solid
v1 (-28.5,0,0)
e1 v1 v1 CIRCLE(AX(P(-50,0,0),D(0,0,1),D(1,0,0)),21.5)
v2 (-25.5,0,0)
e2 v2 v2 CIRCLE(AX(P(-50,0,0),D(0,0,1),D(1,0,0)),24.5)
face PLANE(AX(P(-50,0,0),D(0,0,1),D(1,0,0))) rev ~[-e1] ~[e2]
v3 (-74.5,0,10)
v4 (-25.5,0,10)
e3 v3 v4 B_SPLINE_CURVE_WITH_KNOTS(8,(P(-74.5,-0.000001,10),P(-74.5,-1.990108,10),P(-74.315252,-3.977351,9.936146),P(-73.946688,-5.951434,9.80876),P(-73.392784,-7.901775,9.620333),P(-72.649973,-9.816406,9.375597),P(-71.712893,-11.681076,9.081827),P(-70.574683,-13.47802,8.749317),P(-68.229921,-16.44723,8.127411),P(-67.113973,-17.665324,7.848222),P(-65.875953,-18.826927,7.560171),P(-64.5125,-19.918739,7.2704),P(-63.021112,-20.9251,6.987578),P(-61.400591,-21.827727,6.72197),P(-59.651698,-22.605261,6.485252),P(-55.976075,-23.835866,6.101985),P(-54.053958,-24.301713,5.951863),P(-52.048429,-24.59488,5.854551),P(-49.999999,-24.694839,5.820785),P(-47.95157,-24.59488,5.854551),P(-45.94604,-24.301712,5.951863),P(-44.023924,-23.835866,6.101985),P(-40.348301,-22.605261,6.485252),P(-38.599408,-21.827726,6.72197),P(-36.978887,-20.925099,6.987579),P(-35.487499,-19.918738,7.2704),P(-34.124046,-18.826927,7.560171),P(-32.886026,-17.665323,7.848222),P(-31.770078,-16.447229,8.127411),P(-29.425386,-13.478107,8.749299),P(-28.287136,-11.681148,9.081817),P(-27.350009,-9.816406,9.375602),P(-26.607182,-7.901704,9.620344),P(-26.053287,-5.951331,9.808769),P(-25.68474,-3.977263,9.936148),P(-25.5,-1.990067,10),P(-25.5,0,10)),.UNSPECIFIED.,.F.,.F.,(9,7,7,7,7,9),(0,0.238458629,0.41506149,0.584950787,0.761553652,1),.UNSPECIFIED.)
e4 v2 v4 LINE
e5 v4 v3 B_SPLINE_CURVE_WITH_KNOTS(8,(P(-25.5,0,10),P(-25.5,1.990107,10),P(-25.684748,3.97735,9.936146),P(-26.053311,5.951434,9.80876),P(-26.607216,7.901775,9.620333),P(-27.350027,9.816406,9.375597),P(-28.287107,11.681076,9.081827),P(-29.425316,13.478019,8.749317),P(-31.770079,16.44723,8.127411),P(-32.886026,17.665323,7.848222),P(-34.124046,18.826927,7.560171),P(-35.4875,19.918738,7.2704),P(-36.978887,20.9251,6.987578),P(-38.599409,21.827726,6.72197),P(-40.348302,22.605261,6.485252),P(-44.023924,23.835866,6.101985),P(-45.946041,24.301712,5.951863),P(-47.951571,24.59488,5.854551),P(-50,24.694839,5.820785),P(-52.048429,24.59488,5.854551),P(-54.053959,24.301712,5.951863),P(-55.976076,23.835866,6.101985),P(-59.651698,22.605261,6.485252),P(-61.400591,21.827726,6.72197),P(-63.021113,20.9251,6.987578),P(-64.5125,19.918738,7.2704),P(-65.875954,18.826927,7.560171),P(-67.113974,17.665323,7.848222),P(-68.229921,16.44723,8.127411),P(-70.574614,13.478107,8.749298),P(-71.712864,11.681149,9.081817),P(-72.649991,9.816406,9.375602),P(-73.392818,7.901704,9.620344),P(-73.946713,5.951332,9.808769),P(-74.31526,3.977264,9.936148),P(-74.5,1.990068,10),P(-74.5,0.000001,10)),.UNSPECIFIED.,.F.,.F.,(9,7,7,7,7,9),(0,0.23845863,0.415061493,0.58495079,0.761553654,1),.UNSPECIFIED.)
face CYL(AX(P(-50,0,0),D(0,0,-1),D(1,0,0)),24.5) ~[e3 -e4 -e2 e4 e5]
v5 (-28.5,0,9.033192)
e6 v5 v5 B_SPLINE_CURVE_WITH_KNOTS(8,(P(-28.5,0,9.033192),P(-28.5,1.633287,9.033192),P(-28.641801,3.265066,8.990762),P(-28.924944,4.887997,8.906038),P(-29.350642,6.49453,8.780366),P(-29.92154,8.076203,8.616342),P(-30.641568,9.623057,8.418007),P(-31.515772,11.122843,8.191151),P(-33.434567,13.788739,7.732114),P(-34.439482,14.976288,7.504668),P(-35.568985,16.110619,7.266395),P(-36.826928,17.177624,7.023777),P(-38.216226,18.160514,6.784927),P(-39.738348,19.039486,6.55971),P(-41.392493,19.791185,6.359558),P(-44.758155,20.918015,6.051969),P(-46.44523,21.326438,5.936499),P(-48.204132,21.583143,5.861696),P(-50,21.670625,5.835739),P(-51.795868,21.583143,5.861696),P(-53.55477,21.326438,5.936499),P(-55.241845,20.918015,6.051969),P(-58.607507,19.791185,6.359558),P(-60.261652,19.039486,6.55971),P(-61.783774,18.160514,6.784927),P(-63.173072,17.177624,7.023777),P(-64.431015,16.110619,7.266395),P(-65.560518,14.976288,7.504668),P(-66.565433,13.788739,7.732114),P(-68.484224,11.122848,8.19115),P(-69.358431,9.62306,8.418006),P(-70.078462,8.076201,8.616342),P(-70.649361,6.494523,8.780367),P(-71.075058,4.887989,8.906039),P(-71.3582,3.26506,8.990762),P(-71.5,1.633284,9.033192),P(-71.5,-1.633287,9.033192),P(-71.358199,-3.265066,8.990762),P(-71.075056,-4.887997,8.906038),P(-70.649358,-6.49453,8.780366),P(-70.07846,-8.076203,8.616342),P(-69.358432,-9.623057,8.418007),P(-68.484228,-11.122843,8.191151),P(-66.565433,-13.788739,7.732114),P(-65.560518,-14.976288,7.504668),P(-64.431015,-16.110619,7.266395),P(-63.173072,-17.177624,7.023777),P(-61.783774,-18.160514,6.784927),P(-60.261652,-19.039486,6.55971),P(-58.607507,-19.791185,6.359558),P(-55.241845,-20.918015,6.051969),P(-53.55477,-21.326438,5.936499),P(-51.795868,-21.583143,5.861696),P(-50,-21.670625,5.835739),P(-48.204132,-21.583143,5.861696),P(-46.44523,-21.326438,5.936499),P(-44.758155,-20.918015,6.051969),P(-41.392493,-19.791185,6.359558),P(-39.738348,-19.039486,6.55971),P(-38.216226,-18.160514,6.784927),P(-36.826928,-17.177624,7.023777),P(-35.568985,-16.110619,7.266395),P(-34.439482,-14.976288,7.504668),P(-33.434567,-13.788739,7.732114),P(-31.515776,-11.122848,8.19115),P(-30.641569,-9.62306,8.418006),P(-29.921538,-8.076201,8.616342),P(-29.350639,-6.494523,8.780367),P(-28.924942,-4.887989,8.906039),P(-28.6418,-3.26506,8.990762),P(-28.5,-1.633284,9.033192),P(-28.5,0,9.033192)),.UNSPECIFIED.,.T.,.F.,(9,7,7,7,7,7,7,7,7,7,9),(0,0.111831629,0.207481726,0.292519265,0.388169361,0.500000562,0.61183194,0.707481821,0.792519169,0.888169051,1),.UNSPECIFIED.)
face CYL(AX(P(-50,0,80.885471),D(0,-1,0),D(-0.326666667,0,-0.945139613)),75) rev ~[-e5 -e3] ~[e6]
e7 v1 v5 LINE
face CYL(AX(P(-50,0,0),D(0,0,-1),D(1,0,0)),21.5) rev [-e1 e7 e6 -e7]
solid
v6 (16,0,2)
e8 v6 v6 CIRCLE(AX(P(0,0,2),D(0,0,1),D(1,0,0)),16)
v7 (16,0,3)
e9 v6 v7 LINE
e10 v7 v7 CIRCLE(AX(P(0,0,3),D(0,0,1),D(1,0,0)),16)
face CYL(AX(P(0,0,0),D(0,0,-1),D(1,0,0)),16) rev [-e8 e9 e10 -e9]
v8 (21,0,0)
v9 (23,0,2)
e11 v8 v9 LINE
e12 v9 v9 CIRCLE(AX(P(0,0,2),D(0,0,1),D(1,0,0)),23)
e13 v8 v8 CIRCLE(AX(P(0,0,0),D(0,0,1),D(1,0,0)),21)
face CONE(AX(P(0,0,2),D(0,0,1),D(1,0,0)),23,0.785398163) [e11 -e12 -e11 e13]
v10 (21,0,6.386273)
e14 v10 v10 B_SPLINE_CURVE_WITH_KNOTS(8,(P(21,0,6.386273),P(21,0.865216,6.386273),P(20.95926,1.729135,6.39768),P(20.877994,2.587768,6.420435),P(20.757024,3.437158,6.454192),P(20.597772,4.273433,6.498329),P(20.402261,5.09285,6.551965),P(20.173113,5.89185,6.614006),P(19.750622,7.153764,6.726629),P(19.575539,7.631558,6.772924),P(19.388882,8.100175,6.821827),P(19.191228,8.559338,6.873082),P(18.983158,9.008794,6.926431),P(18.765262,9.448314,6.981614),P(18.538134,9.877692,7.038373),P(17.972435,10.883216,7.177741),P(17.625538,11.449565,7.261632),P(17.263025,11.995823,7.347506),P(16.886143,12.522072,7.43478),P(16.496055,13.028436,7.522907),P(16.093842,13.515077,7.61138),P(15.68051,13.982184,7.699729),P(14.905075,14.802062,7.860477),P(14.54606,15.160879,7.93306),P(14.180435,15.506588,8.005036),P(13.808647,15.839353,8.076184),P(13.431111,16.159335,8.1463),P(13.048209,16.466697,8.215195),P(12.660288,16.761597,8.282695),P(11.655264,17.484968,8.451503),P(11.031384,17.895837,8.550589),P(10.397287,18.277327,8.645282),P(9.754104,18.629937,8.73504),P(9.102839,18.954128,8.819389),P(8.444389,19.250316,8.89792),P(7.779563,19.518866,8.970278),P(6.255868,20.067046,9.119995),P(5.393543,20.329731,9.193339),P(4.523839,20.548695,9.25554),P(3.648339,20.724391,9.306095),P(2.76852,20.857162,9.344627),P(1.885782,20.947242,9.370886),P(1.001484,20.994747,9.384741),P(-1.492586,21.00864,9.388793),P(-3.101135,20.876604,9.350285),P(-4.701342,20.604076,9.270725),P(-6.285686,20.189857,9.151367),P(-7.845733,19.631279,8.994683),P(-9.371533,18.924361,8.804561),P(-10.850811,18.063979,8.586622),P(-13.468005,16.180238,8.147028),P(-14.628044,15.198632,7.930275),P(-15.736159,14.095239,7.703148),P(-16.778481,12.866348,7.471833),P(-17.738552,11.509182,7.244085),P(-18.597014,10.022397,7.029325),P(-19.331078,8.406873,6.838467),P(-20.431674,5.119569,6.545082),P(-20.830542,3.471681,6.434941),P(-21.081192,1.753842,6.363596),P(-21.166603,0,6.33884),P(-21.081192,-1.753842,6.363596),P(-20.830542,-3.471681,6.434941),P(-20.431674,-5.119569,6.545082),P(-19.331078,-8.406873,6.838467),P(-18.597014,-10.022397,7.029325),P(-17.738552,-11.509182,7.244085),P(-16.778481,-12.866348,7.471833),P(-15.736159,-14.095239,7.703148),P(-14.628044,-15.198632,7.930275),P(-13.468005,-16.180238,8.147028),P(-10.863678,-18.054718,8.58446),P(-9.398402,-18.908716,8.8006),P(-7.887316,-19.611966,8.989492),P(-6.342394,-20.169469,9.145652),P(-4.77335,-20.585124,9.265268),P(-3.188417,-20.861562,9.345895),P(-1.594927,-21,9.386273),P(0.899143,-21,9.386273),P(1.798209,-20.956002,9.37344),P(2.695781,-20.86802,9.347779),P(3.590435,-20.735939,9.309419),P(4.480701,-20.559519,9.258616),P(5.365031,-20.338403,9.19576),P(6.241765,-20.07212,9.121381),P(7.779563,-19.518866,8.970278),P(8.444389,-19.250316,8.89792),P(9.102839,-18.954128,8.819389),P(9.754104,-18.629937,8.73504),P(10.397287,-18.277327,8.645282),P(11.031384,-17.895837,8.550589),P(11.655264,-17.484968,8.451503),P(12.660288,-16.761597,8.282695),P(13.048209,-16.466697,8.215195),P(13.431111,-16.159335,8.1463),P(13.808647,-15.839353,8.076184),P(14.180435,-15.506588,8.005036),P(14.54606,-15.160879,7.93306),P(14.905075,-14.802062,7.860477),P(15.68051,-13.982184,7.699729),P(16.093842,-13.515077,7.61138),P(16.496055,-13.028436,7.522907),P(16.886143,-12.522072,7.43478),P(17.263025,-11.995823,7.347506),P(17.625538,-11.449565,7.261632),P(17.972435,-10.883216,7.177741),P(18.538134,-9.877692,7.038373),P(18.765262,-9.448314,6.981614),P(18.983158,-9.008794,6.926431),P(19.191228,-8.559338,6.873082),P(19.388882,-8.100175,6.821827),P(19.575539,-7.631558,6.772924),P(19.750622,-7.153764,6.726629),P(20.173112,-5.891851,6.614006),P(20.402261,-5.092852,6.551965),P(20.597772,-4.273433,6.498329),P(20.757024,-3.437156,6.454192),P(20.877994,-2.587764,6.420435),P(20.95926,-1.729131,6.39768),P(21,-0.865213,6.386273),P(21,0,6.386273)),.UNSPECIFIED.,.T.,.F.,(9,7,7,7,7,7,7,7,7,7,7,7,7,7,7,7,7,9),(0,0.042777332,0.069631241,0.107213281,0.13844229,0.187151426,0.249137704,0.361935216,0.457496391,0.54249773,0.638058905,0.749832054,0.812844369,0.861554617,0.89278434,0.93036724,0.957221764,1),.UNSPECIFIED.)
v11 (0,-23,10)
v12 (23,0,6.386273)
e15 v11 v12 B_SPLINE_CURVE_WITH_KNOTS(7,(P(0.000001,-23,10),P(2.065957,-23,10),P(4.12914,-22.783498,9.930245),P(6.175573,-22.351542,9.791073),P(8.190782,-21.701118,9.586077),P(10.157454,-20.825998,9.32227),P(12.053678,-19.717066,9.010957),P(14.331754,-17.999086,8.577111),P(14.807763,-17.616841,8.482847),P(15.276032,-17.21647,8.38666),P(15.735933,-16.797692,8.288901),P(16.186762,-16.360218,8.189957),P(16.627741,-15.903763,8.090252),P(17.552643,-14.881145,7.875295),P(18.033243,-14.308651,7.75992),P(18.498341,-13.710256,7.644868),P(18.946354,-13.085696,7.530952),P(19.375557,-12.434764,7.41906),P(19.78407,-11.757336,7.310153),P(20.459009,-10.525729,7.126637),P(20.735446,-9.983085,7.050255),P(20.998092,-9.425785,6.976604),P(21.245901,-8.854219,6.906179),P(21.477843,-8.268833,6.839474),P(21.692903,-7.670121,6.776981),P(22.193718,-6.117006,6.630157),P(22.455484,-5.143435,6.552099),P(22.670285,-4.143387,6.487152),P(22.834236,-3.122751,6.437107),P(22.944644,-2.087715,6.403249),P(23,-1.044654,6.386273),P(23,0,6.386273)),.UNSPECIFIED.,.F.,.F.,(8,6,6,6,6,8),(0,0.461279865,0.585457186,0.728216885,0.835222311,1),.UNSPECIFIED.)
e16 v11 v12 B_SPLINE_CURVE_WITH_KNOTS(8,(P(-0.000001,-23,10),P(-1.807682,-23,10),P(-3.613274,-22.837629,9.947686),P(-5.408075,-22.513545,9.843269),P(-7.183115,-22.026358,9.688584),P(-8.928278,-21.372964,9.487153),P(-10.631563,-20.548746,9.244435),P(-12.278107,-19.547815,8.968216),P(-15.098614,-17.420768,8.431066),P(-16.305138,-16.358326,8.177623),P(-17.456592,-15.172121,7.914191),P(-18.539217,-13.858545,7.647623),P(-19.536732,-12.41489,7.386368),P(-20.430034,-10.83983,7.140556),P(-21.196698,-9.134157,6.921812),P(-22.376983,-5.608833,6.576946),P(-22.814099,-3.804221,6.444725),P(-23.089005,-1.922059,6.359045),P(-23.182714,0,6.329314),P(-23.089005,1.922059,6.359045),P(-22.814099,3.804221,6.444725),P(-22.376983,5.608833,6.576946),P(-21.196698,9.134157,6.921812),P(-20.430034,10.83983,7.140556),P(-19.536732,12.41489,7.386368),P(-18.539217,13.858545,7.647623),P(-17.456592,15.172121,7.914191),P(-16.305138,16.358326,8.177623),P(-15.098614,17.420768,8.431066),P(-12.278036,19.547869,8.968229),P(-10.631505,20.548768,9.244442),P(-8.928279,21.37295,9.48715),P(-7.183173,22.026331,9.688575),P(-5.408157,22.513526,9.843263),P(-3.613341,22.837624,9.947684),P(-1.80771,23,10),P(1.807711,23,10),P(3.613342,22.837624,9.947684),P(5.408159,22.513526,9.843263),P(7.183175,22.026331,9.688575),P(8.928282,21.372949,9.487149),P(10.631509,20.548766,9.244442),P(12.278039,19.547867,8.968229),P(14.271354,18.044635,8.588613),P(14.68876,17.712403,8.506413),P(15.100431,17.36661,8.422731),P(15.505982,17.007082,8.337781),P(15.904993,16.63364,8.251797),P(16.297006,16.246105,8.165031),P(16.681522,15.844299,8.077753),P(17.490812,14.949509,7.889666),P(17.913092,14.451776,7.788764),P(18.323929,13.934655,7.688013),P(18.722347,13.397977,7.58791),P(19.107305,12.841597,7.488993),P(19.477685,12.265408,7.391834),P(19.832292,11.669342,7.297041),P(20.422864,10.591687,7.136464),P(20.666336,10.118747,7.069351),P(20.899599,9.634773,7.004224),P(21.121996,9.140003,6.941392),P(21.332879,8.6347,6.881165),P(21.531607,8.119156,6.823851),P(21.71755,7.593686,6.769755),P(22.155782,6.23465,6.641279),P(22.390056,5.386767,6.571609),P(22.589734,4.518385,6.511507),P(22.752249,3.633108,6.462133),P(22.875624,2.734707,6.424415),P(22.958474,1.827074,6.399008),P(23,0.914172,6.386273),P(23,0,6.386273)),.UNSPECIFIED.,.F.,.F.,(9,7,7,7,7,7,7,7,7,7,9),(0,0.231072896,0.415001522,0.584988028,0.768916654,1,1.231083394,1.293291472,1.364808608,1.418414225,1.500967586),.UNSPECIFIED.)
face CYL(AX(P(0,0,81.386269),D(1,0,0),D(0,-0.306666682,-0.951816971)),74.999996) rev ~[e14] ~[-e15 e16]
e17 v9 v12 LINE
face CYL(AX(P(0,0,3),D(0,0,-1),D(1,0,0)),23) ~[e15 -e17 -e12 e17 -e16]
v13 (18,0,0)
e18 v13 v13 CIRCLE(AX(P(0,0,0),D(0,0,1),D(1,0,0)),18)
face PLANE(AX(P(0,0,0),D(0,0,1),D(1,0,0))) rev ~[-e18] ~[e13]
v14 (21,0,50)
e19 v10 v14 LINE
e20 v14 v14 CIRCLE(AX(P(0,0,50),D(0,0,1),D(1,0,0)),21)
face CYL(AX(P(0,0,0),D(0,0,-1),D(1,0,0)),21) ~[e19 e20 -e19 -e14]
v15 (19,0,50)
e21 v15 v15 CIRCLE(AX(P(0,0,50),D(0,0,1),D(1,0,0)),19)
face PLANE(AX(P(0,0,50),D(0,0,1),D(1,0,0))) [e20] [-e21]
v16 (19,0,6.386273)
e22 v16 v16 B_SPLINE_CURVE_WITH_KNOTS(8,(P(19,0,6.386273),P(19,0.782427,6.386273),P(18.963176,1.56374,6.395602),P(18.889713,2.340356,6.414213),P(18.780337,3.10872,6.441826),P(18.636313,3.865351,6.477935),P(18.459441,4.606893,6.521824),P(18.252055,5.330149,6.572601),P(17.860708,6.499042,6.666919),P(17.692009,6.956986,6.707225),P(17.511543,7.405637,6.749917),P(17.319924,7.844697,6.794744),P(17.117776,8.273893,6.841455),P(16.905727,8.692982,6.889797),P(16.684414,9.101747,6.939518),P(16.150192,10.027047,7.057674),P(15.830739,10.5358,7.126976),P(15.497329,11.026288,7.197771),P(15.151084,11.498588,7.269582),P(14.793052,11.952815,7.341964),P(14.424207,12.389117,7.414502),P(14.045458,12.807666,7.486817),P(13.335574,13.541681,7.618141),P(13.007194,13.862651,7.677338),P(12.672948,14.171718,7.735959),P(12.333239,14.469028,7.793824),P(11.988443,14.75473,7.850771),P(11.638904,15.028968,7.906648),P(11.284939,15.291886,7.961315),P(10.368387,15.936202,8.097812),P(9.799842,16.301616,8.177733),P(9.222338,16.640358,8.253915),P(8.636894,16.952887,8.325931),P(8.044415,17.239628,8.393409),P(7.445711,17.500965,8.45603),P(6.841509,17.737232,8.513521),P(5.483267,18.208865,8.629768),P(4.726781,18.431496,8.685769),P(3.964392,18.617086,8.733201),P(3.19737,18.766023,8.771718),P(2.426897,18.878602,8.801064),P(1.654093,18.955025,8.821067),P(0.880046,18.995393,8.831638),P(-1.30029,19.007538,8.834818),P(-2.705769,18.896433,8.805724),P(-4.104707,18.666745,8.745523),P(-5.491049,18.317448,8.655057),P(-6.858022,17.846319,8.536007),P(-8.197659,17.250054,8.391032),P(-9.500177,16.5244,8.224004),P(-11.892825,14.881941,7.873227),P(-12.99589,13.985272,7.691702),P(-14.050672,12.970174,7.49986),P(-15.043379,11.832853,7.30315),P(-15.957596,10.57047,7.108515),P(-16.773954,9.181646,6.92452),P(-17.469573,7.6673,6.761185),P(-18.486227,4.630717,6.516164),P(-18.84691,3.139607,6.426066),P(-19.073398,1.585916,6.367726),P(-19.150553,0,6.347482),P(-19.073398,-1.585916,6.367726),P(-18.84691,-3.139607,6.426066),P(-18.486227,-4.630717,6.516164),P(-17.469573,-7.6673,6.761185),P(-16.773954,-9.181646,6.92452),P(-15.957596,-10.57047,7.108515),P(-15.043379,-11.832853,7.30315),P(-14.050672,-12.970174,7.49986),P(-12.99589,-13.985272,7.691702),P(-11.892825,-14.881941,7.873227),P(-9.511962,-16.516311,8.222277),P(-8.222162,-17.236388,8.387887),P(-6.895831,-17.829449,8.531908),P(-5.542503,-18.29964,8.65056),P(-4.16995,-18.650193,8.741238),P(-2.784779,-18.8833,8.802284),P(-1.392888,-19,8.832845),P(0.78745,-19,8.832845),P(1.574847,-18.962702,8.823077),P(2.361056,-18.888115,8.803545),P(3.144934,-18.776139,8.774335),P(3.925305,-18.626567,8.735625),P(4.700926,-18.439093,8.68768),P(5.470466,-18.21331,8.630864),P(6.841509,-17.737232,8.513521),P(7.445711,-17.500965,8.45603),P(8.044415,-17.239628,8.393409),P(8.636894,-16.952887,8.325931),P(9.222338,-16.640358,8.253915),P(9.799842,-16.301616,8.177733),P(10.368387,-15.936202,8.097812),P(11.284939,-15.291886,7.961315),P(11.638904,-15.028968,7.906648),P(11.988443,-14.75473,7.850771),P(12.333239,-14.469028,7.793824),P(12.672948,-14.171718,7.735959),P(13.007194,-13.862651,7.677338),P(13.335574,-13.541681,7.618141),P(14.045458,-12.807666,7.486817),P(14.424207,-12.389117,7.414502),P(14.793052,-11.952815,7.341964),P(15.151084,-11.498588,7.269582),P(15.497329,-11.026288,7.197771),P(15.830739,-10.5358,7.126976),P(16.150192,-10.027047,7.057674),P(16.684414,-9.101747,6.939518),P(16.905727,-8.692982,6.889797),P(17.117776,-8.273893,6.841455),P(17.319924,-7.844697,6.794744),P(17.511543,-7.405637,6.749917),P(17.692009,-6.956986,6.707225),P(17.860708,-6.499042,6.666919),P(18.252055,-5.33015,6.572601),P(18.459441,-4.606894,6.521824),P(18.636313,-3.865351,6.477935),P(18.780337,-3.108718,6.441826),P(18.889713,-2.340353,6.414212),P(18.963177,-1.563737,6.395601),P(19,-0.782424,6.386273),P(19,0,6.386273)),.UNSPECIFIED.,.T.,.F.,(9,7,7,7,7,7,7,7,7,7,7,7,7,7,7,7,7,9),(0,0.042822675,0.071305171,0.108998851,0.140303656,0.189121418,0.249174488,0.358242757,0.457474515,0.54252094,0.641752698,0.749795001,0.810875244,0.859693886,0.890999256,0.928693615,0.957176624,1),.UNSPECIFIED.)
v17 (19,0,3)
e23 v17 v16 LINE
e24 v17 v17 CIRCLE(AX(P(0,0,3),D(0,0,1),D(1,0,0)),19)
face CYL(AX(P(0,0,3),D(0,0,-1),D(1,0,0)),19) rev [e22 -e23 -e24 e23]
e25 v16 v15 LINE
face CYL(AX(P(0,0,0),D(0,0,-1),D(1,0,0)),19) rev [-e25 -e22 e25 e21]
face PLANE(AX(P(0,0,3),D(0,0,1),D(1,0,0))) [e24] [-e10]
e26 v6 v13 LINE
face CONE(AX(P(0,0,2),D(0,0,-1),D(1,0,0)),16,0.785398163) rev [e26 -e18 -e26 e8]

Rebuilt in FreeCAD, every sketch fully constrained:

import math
import FreeCAD as App
import Part
import Sketcher


def edges_at(feature, points):
    """Names of the edges that pass closest to the given points."""
    edges = feature.Shape.Edges
    near = lambda p: min(range(len(edges)), key=lambda i: edges[i].distToShape(Part.Vertex(*p))[0])
    return sorted({f"Edge{near(p) + 1}" for p in points})

doc = App.newDocument("Part")
body = doc.addObject("PartDesign::Body", "Body")

sketch1 = doc.addObject("Sketcher::SketchObject", "Sketch")
body.addObject(sketch1)
sketch1.AttachmentSupport = (doc.XY_Plane, [""])
sketch1.MapMode = "FlatFace"
sketch1.addGeometry([
    Part.Circle(App.Vector(0, 0, 0), App.Vector(0, 0, 1), 23),
    Part.Circle(App.Vector(0, 0, 0), App.Vector(0, 0, 1), 16),
], False)
sketch1.addConstraint([
    Sketcher.Constraint("Coincident", 0, 3, -1, 1),
    Sketcher.Constraint("Coincident", 1, 3, -1, 1),
    Sketcher.Constraint("Diameter", 0, 46.0),
    Sketcher.Constraint("Diameter", 1, 32.0),
])
pad1 = doc.addObject("PartDesign::Pad", "Pad")
body.addObject(pad1)
pad1.Profile = sketch1
pad1.Length = 3

sketch2 = doc.addObject("Sketcher::SketchObject", "Sketch001")
body.addObject(sketch2)
sketch2.AttachmentSupport = (doc.XY_Plane, [""])
sketch2.MapMode = "FlatFace"
sketch2.AttachmentOffset = App.Placement(App.Vector(0, 0, 3), App.Rotation())
sketch2.addGeometry([
    Part.Circle(App.Vector(0, 0, 0), App.Vector(0, 0, 1), 23),
    Part.Circle(App.Vector(0, 0, 0), App.Vector(0, 0, 1), 19),
], False)
sketch2.addConstraint([
    Sketcher.Constraint("Coincident", 0, 3, -1, 1),
    Sketcher.Constraint("Coincident", 1, 3, -1, 1),
    Sketcher.Constraint("Diameter", 0, 46.0),
    Sketcher.Constraint("Diameter", 1, 38.0),
])
pad2 = doc.addObject("PartDesign::Pad", "Pad001")
body.addObject(pad2)
pad2.Profile = sketch2
pad2.Length = 25

sketch3 = doc.addObject("Sketcher::SketchObject", "Sketch002")
body.addObject(sketch3)
sketch3.AttachmentSupport = (doc.YZ_Plane, [""])
sketch3.MapMode = "FlatFace"
sketch3.addGeometry([
    Part.LineSegment(App.Vector(-32, 34, 0), App.Vector(-23, 10, 0)),
    Part.ArcOfCircle(Part.Circle(App.Vector(0, 81, 0), App.Vector(0, 0, 1), 75), math.radians(-108), math.radians(-72)),
    Part.LineSegment(App.Vector(23, 10, 0), App.Vector(36, 34, 0)),
    Part.LineSegment(App.Vector(36, 34, 0), App.Vector(-32, 34, 0)),
], False)
sketch3.addConstraint([
    Sketcher.Constraint("Coincident", 0, 2, 1, 1),
    Sketcher.Constraint("Coincident", 1, 2, 2, 1),
    Sketcher.Constraint("Coincident", 2, 2, 3, 1),
    Sketcher.Constraint("Coincident", 3, 2, 0, 1),
    Sketcher.Constraint("Horizontal", 3),
    Sketcher.Constraint("Symmetric", 0, 2, 1, 2, -2),
    Sketcher.Constraint("DistanceX", 0, 2, -1, 1, 23.0),
    Sketcher.Constraint("DistanceY", -1, 1, 0, 2, 10.0),
    Sketcher.Constraint("DistanceX", 3, 2, 3, 1, 68.844702),
    Sketcher.Constraint("Radius", 1, 74.999996),
    Sketcher.Constraint("Distance", 0, 25.690921),
    Sketcher.Constraint("DistanceX", 3, 2, -1, 1, 32.46776),
])
pocket1 = doc.addObject("PartDesign::Pocket", "Pocket")
body.addObject(pocket1)
pocket1.Profile = sketch3
pocket1.Length = 100
pocket1.Midplane = True

sketch4 = doc.addObject("Sketcher::SketchObject", "Sketch003")
body.addObject(sketch4)
sketch4.AttachmentSupport = (doc.XY_Plane, [""])
sketch4.MapMode = "FlatFace"
sketch4.addGeometry([
    Part.Circle(App.Vector(0, 0, 0), App.Vector(0, 0, 1), 21),
    Part.Circle(App.Vector(0, 0, 0), App.Vector(0, 0, 1), 19),
], False)
sketch4.addConstraint([
    Sketcher.Constraint("Coincident", 0, 3, -1, 1),
    Sketcher.Constraint("Coincident", 1, 3, -1, 1),
    Sketcher.Constraint("Diameter", 0, 42.0),
    Sketcher.Constraint("Diameter", 1, 38.0),
])
pad3 = doc.addObject("PartDesign::Pad", "Pad002")
body.addObject(pad3)
pad3.Profile = sketch4
pad3.Length = 50
doc.recompute()

chamfer = doc.addObject("PartDesign::Chamfer", "Chamfer")
body.addObject(chamfer)
chamfer.Base = (pad3, edges_at(pad3, [(-23, 0, 0), (-16, 0, 0)]))
chamfer.Size = 2
body2 = doc.addObject("PartDesign::Body", "Body001")

sketch5 = doc.addObject("Sketcher::SketchObject", "Sketch004")
body2.addObject(sketch5)
sketch5.AttachmentSupport = (doc.getObject("XY_Plane001"), [""])
sketch5.MapMode = "FlatFace"
sketch5.addGeometry([
    Part.Circle(App.Vector(-50, 0, 0), App.Vector(0, 0, 1), 24),
    Part.Circle(App.Vector(-50, 0, 0), App.Vector(0, 0, 1), 22),
], False)
sketch5.addConstraint([
    Sketcher.Constraint("Coincident", 1, 3, 0, 3),
    Sketcher.Constraint("PointOnObject", 0, 3, -1),
    Sketcher.Constraint("Diameter", 0, 49.0),
    Sketcher.Constraint("Diameter", 1, 43.0),
    Sketcher.Constraint("DistanceX", 0, 3, -1, 1, 50.0),
])
pad4 = doc.addObject("PartDesign::Pad", "Pad003")
body2.addObject(pad4)
pad4.Profile = sketch5
pad4.Length = 25

sketch6 = doc.addObject("Sketcher::SketchObject", "Sketch005")
body2.addObject(sketch6)
sketch6.AttachmentSupport = (doc.getObject("XZ_Plane001"), [""])
sketch6.MapMode = "FlatFace"
sketch6.addGeometry([
    Part.LineSegment(App.Vector(-81, 37, 0), App.Vector(-74, 10, 0)),
    Part.ArcOfCircle(Part.Circle(App.Vector(-50, 81, 0), App.Vector(0, 0, 1), 75), math.radians(-109), math.radians(-71)),
    Part.LineSegment(App.Vector(-26, 10, 0), App.Vector(-23, 36, 0)),
    Part.LineSegment(App.Vector(-23, 36, 0), App.Vector(-81, 37, 0)),
], False)
sketch6.addConstraint([
    Sketcher.Constraint("Coincident", 0, 2, 1, 1),
    Sketcher.Constraint("Coincident", 1, 2, 2, 1),
    Sketcher.Constraint("Coincident", 2, 2, 3, 1),
    Sketcher.Constraint("Coincident", 3, 2, 0, 1),
    Sketcher.Constraint("Horizontal", 0, 2, 1, 2),
    Sketcher.Constraint("Radius", 1, 75.0),
    Sketcher.Constraint("DistanceX", 1, 3, -1, 1, 50.0),
    Sketcher.Constraint("DistanceY", -1, 1, 0, 2, 10.0),
    Sketcher.Constraint("DistanceX", 0, 2, 1, 2, 49.0),
    Sketcher.Constraint("DistanceY", 2, 2, 3, 2, 1.0803),
    Sketcher.Constraint("Distance", 0, 27.512079),
    Sketcher.Constraint("Distance", 2, 25.697288),
    Sketcher.Constraint("Distance", 3, 58.34631),
])
pocket2 = doc.addObject("PartDesign::Pocket", "Pocket001")
body2.addObject(pocket2)
pocket2.Profile = sketch6
pocket2.Length = 100
pocket2.Midplane = True

doc.recompute()
